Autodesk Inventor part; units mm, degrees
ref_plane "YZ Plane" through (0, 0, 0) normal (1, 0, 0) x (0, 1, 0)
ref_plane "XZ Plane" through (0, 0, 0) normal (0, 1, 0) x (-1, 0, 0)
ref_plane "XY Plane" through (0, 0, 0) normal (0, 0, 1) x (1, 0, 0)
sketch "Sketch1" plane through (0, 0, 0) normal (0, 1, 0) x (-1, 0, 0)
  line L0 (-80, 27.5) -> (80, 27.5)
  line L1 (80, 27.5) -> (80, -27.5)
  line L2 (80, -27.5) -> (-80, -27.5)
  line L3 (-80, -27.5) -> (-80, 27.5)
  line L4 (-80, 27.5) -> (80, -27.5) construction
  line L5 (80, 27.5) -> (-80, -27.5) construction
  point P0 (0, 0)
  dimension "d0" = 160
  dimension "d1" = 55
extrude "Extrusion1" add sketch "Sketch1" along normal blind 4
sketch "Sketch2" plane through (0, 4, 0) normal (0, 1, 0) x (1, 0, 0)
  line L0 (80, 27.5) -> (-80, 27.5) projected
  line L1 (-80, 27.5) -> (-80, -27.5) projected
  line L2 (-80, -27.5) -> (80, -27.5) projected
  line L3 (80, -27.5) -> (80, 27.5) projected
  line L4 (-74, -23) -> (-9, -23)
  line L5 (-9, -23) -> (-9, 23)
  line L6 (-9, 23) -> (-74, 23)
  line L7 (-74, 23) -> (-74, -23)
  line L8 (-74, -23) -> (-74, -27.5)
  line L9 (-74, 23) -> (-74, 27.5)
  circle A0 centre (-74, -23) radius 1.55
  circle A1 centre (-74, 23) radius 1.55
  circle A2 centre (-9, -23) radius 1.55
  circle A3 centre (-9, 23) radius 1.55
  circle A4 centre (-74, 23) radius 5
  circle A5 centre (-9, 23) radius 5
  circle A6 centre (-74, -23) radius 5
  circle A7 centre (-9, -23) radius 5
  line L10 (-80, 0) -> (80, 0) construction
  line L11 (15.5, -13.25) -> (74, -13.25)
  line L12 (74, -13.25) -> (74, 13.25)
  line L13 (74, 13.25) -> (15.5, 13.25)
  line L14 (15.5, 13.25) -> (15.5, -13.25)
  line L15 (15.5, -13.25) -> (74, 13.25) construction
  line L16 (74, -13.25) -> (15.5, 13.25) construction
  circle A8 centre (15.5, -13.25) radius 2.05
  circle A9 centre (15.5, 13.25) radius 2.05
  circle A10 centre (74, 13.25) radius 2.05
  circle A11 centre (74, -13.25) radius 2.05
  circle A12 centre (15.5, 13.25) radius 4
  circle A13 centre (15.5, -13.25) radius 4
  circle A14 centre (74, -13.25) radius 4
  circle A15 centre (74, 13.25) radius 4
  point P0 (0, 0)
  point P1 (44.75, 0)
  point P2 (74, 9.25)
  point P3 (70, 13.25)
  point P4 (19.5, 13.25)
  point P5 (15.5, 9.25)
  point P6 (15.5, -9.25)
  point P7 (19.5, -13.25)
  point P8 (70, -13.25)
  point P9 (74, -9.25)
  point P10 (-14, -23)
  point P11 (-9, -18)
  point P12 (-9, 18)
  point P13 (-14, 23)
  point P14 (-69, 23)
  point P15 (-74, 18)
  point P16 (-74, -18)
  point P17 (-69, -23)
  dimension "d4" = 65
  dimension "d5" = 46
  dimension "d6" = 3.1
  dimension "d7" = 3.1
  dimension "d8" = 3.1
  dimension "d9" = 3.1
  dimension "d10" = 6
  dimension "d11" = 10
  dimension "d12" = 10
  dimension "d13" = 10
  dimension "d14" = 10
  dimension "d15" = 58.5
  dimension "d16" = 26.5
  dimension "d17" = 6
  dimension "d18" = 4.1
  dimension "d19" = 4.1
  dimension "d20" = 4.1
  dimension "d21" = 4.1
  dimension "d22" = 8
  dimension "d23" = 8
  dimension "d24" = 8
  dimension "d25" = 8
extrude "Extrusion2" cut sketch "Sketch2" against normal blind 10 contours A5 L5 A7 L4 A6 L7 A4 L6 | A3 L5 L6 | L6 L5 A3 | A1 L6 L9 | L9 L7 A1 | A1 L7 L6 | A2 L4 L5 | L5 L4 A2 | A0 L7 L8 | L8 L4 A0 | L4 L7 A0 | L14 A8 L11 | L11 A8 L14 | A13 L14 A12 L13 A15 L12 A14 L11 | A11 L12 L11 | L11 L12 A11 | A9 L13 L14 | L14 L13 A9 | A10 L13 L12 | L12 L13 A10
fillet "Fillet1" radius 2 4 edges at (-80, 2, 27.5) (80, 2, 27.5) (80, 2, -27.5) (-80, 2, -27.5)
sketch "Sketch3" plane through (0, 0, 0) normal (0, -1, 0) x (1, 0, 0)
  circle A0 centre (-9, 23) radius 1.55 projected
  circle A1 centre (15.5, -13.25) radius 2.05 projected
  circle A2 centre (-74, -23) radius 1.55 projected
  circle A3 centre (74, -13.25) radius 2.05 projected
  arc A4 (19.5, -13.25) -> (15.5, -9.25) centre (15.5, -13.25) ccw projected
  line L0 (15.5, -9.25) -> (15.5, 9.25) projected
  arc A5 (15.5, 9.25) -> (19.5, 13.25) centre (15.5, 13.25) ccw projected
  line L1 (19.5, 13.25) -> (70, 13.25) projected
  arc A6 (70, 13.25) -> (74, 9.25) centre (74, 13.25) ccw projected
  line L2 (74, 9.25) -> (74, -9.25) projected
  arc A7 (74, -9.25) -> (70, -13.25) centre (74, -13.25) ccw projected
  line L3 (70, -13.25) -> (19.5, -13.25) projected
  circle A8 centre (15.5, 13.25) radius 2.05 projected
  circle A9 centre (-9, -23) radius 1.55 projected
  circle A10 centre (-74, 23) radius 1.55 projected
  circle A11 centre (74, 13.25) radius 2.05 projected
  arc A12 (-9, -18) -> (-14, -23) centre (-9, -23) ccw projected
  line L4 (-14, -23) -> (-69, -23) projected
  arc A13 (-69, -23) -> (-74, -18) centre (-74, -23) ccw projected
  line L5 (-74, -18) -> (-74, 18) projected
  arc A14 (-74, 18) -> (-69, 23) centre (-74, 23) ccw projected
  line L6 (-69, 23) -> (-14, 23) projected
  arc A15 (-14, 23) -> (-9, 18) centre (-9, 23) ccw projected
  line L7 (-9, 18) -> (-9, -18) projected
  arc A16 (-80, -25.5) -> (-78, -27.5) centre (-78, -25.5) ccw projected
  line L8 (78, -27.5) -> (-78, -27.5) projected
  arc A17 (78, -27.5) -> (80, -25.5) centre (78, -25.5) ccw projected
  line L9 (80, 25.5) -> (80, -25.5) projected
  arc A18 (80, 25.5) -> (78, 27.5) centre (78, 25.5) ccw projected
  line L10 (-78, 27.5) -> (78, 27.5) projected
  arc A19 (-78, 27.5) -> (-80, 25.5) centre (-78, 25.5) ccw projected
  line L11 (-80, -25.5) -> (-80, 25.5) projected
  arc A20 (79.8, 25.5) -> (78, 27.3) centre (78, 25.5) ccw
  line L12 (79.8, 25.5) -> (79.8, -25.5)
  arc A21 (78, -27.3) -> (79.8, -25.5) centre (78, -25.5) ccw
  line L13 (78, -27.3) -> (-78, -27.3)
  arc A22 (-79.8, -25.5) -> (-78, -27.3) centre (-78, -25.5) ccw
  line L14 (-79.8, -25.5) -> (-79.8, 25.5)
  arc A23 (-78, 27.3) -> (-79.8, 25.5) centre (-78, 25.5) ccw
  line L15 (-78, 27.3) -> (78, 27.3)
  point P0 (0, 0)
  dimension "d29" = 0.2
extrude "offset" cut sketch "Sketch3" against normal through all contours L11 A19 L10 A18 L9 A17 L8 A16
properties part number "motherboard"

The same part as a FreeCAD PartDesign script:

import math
import FreeCAD as App
import Part
import Sketcher
from FreeCAD import Vector


def edges_at(feature, points):
    """Names of the edges that pass closest to the given points."""
    edges = feature.Shape.Edges
    near = lambda p: min(range(len(edges)), key=lambda i: edges[i].distToShape(Part.Vertex(*p))[0])
    return sorted({f"Edge{near(p) + 1}" for p in points})

doc = App.newDocument("Part")
body = doc.addObject("PartDesign::Body", "Body")

# Sketch on XZ plane
sketch1 = body.newObject("Sketcher::SketchObject", "Sketch")
sketch1.AttachmentSupport = (doc.getObject("XZ_Plane"), [""])
sketch1.MapMode = "FlatFace"
sketch1.addGeometry([
    Part.LineSegment(Vector(-80, 28, 0), Vector(80, 28, 0)),
    Part.LineSegment(Vector(80, 28, 0), Vector(80, -28, 0)),
    Part.LineSegment(Vector(80, -28, 0), Vector(-80, -28, 0)),
    Part.LineSegment(Vector(-80, -28, 0), Vector(-80, 28, 0)),
], False)
sketch1.addConstraint([
    Sketcher.Constraint("Coincident", 0, 2, 1, 1),
    Sketcher.Constraint("Coincident", 1, 2, 2, 1),
    Sketcher.Constraint("Coincident", 2, 2, 3, 1),
    Sketcher.Constraint("Coincident", 3, 2, 0, 1),
    Sketcher.Constraint("Horizontal", 0),
    Sketcher.Constraint("Vertical", 1),
    Sketcher.Constraint("Horizontal", 2),
    Sketcher.Constraint("Vertical", 3),
    Sketcher.Constraint("Symmetric", 0, 2, 2, 2, -1, 1),
    Sketcher.Constraint("DistanceX", 0, 1, 0, 2, 160.0),
    Sketcher.Constraint("DistanceY", 1, 2, 1, 1, 55.0),
])
pad1 = body.newObject("PartDesign::Pad", "Pad")
pad1.Profile = sketch1
pad1.Length = 4
pad1.Reversed = True

# Sketch on XZ plane
sketch2 = body.newObject("Sketcher::SketchObject", "Sketch001")
sketch2.AttachmentSupport = (doc.getObject("XZ_Plane"), [""])
sketch2.MapMode = "FlatFace"
sketch2.AttachmentOffset = App.Placement(Vector(0, 0, -4), App.Rotation())
sketch2.addGeometry([
    Part.ArcOfCircle(Part.Circle(Vector(-9, -23, 0), Vector(0, 0, 1), 5), math.radians(90), math.radians(180)),  # 0
    Part.LineSegment(Vector(-14, -23, 0), Vector(-69, -23, 0)),  # 1
    Part.ArcOfCircle(Part.Circle(Vector(-74, -23, 0), Vector(0, 0, 1), 5), math.radians(0), math.radians(90)),  # 2
    Part.LineSegment(Vector(-74, -18, 0), Vector(-74, 18, 0)),  # 3
    Part.ArcOfCircle(Part.Circle(Vector(-74, 23, 0), Vector(0, 0, 1), 5), math.radians(-90), math.radians(0)),  # 4
    Part.LineSegment(Vector(-69, 23, 0), Vector(-14, 23, 0)),  # 5
    Part.ArcOfCircle(Part.Circle(Vector(-9, 23, 0), Vector(0, 0, 1), 5), math.radians(180), math.radians(270)),  # 6
    Part.LineSegment(Vector(-9, 18, 0), Vector(-9, -18, 0)),  # 7
    Part.Circle(Vector(-9, -23, 0), Vector(0, 0, 1), 1.6),  # 8
    Part.Circle(Vector(-74, -23, 0), Vector(0, 0, 1), 1.6),  # 9
    Part.Circle(Vector(-9, 23, 0), Vector(0, 0, 1), 1.6),  # 10
    Part.Circle(Vector(-74, 23, 0), Vector(0, 0, 1), 1.6),  # 11
    Part.Circle(Vector(15.5, 13.2, 0), Vector(0, 0, 1), 2),  # 12
    Part.ArcOfCircle(Part.Circle(Vector(15.5, 13.2, 0), Vector(0, 0, 1), 4), math.radians(-90), math.radians(0)),  # 13
    Part.LineSegment(Vector(19.5, 13.2, 0), Vector(70, 13.2, 0)),  # 14
    Part.ArcOfCircle(Part.Circle(Vector(74, 13.2, 0), Vector(0, 0, 1), 4), math.radians(180), math.radians(270)),  # 15
    Part.LineSegment(Vector(74, 9.2, 0), Vector(74, -9.2, 0)),  # 16
    Part.ArcOfCircle(Part.Circle(Vector(74, -13.2, 0), Vector(0, 0, 1), 4), math.radians(90), math.radians(180)),  # 17
    Part.LineSegment(Vector(70, -13.2, 0), Vector(19.5, -13.2, 0)),  # 18
    Part.ArcOfCircle(Part.Circle(Vector(15.5, -13.2, 0), Vector(0, 0, 1), 4), math.radians(0), math.radians(90)),  # 19
    Part.LineSegment(Vector(15.5, -9.2, 0), Vector(15.5, 9.2, 0)),  # 20
    Part.Circle(Vector(74, 13.2, 0), Vector(0, 0, 1), 2),  # 21
    Part.Circle(Vector(15.5, -13.2, 0), Vector(0, 0, 1), 2),  # 22
    Part.Circle(Vector(74, -13.2, 0), Vector(0, 0, 1), 2),  # 23
], False)
sketch2.addConstraint([
    Sketcher.Constraint("Coincident", 0, 2, 1, 1),
    Sketcher.Constraint("Coincident", 1, 2, 2, 1),
    Sketcher.Constraint("Coincident", 2, 2, 3, 1),
    Sketcher.Constraint("Coincident", 3, 2, 4, 1),
    Sketcher.Constraint("Coincident", 4, 2, 5, 1),
    Sketcher.Constraint("Coincident", 5, 2, 6, 1),
    Sketcher.Constraint("Coincident", 6, 2, 7, 1),
    Sketcher.Constraint("Coincident", 7, 2, 0, 1),
    Sketcher.Constraint("Coincident", 13, 2, 14, 1),
    Sketcher.Constraint("Coincident", 14, 2, 15, 1),
    Sketcher.Constraint("Coincident", 15, 2, 16, 1),
    Sketcher.Constraint("Coincident", 16, 2, 17, 1),
    Sketcher.Constraint("Coincident", 17, 2, 18, 1),
    Sketcher.Constraint("Coincident", 18, 2, 19, 1),
    Sketcher.Constraint("Coincident", 19, 2, 20, 1),
    Sketcher.Constraint("Coincident", 20, 2, 13, 1),
    Sketcher.Constraint("Horizontal", 1),
    Sketcher.Constraint("Vertical", 3),
    Sketcher.Constraint("Horizontal", 5),
    Sketcher.Constraint("Vertical", 7),
    Sketcher.Constraint("Horizontal", 14),
    Sketcher.Constraint("Vertical", 16),
    Sketcher.Constraint("Horizontal", 18),
    Sketcher.Constraint("Vertical", 20),
    Sketcher.Constraint("Coincident", 8, 3, 0, 3),
    Sketcher.Constraint("Coincident", 9, 3, 2, 3),
    Sketcher.Constraint("Coincident", 10, 3, 6, 3),
    Sketcher.Constraint("Coincident", 11, 3, 4, 3),
    Sketcher.Constraint("Coincident", 13, 3, 12, 3),
    Sketcher.Constraint("Coincident", 21, 3, 15, 3),
    Sketcher.Constraint("Coincident", 22, 3, 19, 3),
    Sketcher.Constraint("Coincident", 23, 3, 17, 3),
    Sketcher.Constraint("Equal", 0, 2),
    Sketcher.Constraint("Equal", 2, 4),
    Sketcher.Constraint("Equal", 4, 6),
    Sketcher.Constraint("Equal", 8, 9),
    Sketcher.Constraint("Equal", 9, 10),
    Sketcher.Constraint("Equal", 10, 11),
    Sketcher.Constraint("Equal", 13, 15),
    Sketcher.Constraint("Equal", 15, 17),
    Sketcher.Constraint("Equal", 17, 19),
    Sketcher.Constraint("Equal", 12, 21),
    Sketcher.Constraint("Equal", 21, 22),
    Sketcher.Constraint("Equal", 22, 23),
    Sketcher.Constraint("Symmetric", 2, 3, 4, 3, -1),
    Sketcher.Constraint("Symmetric", 0, 3, 6, 3, -1),
    Sketcher.Constraint("Symmetric", 15, 3, 17, 3, -1),
    Sketcher.Constraint("Symmetric", 12, 3, 19, 3, -1),
    Sketcher.Constraint("Horizontal", 0, 3, 2, 3),
    Sketcher.Constraint("Horizontal", 13, 3, 15, 3),
    Sketcher.Constraint("Horizontal", 9, 3, 0, 2),
    Sketcher.Constraint("Horizontal", 11, 3, 4, 2),
    Sketcher.Constraint("Horizontal", 21, 3, 13, 2),
    Sketcher.Constraint("Horizontal", 23, 3, 17, 2),
    Sketcher.Constraint("Vertical", 11, 3, 2, 2),
    Sketcher.Constraint("Vertical", 10, 3, 6, 2),
    Sketcher.Constraint("Vertical", 23, 3, 15, 2),
    Sketcher.Constraint("Vertical", 22, 3, 19, 2),
    Sketcher.Constraint("Radius", 0, 5.0),
    Sketcher.Constraint("Radius", 13, 4.0),
    Sketcher.Constraint("Diameter", 8, 3.1),
    Sketcher.Constraint("Diameter", 12, 4.1),
    Sketcher.Constraint("DistanceX", 2, 3, 0, 3, 65.0),
    Sketcher.Constraint("DistanceY", 2, 3, 4, 3, 46.0),
    Sketcher.Constraint("DistanceX", 12, 3, 15, 3, 58.5),
    Sketcher.Constraint("DistanceY", 17, 3, 15, 3, 26.5),
    Sketcher.Constraint("DistanceX", 0, 3, -1, 1, 9.0),
    Sketcher.Constraint("DistanceX", -1, 1, 15, 3, 74.0),
])
pocket1 = body.newObject("PartDesign::Pocket", "Pocket")
pocket1.Profile = sketch2
pocket1.Length = 10
pocket1.Reversed = True
doc.recompute()

fillet = body.newObject("PartDesign::Fillet", "Fillet")
fillet.Base = (pocket1, edges_at(pocket1, [
    (-80, 2, 27.5),
    (80, 2, 27.5),
    (80, 2, -27.5),
    (-80, 2, -27.5),
]))
fillet.Radius = 2

# Sketch on XZ plane
sketch3 = body.newObject("Sketcher::SketchObject", "Sketch002")
sketch3.AttachmentSupport = (doc.getObject("XZ_Plane"), [""])
sketch3.MapMode = "FlatFace"
sketch3.addGeometry([
    Part.LineSegment(Vector(-80, 25.5, 0), Vector(-80, -25.5, 0)),  # 0
    Part.ArcOfCircle(Part.Circle(Vector(-78, -25.5, 0), Vector(0, 0, 1), 2), math.radians(180), math.radians(270)),  # 1
    Part.LineSegment(Vector(-78, -27.5, 0), Vector(78, -27.5, 0)),  # 2
    Part.ArcOfCircle(Part.Circle(Vector(78, -25.5, 0), Vector(0, 0, 1), 2), math.radians(-90), math.radians(0)),  # 3
    Part.LineSegment(Vector(80, -25.5, 0), Vector(80, 25.5, 0)),  # 4
    Part.ArcOfCircle(Part.Circle(Vector(78, 25.5, 0), Vector(0, 0, 1), 2), math.radians(0), math.radians(90)),  # 5
    Part.LineSegment(Vector(78, 27.5, 0), Vector(-78, 27.5, 0)),  # 6
    Part.ArcOfCircle(Part.Circle(Vector(-78, 25.5, 0), Vector(0, 0, 1), 2), math.radians(90), math.radians(180)),  # 7
    Part.ArcOfCircle(Part.Circle(Vector(78, 25.5, 0), Vector(0, 0, 1), 1.8), math.radians(0), math.radians(90)),  # 8
    Part.LineSegment(Vector(79.8, 25.5, 0), Vector(79.8, -25.5, 0)),  # 9
    Part.ArcOfCircle(Part.Circle(Vector(78, -25.5, 0), Vector(0, 0, 1), 1.8), math.radians(-90), math.radians(0)),  # 10
    Part.LineSegment(Vector(78, -27.3, 0), Vector(-78, -27.3, 0)),  # 11
    Part.ArcOfCircle(Part.Circle(Vector(-78, -25.5, 0), Vector(0, 0, 1), 1.8), math.radians(180), math.radians(270)),  # 12
    Part.LineSegment(Vector(-79.8, -25.5, 0), Vector(-79.8, 25.5, 0)),  # 13
    Part.ArcOfCircle(Part.Circle(Vector(-78, 25.5, 0), Vector(0, 0, 1), 1.8), math.radians(90), math.radians(180)),  # 14
    Part.LineSegment(Vector(-78, 27.3, 0), Vector(78, 27.3, 0)),  # 15
], False)
sketch3.addConstraint([
    Sketcher.Constraint("Tangent", 0, 2, 1, 1),
    Sketcher.Constraint("Tangent", 1, 2, 2, 1),
    Sketcher.Constraint("Tangent", 2, 2, 3, 1),
    Sketcher.Constraint("Tangent", 3, 2, 4, 1),
    Sketcher.Constraint("Tangent", 4, 2, 5, 1),
    Sketcher.Constraint("Tangent", 5, 2, 6, 1),
    Sketcher.Constraint("Tangent", 6, 2, 7, 1),
    Sketcher.Constraint("Tangent", 7, 2, 0, 1),
    Sketcher.Constraint("Tangent", 8, 1, 9, 1),
    Sketcher.Constraint("Tangent", 9, 2, 10, 2),
    Sketcher.Constraint("Tangent", 10, 1, 11, 1),
    Sketcher.Constraint("Tangent", 11, 2, 12, 2),
    Sketcher.Constraint("Tangent", 12, 1, 13, 1),
    Sketcher.Constraint("Tangent", 13, 2, 14, 2),
    Sketcher.Constraint("Tangent", 14, 1, 15, 1),
    Sketcher.Constraint("Tangent", 15, 2, 8, 2),
    Sketcher.Constraint("Vertical", 0),
    Sketcher.Constraint("Horizontal", 2),
    Sketcher.Constraint("Vertical", 4),
    Sketcher.Constraint("Horizontal", 6),
    Sketcher.Constraint("Vertical", 9),
    Sketcher.Constraint("Horizontal", 11),
    Sketcher.Constraint("Vertical", 13),
    Sketcher.Constraint("Horizontal", 15),
    Sketcher.Constraint("Coincident", 8, 3, 5, 3),
    Sketcher.Constraint("Coincident", 10, 3, 3, 3),
    Sketcher.Constraint("Coincident", 12, 3, 1, 3),
    Sketcher.Constraint("Equal", 1, 3),
    Sketcher.Constraint("Equal", 3, 5),
    Sketcher.Constraint("Equal", 5, 7),
    Sketcher.Constraint("Equal", 12, 14),
    Sketcher.Constraint("Symmetric", 1, 3, 5, 3, -1, 1),
    Sketcher.Constraint("Radius", 1, 2.0),
    Sketcher.Constraint("Radius", 8, 1.8),
    Sketcher.Constraint("DistanceX", 2, 1, 2, 2, 156.0),
    Sketcher.Constraint("DistanceY", 0, 2, 0, 1, 51.0),
])
pocket2 = body.newObject("PartDesign::Pocket", "Pocket001")
pocket2.Profile = sketch3
pocket2.Type = "ThroughAll"

doc.recompute()
